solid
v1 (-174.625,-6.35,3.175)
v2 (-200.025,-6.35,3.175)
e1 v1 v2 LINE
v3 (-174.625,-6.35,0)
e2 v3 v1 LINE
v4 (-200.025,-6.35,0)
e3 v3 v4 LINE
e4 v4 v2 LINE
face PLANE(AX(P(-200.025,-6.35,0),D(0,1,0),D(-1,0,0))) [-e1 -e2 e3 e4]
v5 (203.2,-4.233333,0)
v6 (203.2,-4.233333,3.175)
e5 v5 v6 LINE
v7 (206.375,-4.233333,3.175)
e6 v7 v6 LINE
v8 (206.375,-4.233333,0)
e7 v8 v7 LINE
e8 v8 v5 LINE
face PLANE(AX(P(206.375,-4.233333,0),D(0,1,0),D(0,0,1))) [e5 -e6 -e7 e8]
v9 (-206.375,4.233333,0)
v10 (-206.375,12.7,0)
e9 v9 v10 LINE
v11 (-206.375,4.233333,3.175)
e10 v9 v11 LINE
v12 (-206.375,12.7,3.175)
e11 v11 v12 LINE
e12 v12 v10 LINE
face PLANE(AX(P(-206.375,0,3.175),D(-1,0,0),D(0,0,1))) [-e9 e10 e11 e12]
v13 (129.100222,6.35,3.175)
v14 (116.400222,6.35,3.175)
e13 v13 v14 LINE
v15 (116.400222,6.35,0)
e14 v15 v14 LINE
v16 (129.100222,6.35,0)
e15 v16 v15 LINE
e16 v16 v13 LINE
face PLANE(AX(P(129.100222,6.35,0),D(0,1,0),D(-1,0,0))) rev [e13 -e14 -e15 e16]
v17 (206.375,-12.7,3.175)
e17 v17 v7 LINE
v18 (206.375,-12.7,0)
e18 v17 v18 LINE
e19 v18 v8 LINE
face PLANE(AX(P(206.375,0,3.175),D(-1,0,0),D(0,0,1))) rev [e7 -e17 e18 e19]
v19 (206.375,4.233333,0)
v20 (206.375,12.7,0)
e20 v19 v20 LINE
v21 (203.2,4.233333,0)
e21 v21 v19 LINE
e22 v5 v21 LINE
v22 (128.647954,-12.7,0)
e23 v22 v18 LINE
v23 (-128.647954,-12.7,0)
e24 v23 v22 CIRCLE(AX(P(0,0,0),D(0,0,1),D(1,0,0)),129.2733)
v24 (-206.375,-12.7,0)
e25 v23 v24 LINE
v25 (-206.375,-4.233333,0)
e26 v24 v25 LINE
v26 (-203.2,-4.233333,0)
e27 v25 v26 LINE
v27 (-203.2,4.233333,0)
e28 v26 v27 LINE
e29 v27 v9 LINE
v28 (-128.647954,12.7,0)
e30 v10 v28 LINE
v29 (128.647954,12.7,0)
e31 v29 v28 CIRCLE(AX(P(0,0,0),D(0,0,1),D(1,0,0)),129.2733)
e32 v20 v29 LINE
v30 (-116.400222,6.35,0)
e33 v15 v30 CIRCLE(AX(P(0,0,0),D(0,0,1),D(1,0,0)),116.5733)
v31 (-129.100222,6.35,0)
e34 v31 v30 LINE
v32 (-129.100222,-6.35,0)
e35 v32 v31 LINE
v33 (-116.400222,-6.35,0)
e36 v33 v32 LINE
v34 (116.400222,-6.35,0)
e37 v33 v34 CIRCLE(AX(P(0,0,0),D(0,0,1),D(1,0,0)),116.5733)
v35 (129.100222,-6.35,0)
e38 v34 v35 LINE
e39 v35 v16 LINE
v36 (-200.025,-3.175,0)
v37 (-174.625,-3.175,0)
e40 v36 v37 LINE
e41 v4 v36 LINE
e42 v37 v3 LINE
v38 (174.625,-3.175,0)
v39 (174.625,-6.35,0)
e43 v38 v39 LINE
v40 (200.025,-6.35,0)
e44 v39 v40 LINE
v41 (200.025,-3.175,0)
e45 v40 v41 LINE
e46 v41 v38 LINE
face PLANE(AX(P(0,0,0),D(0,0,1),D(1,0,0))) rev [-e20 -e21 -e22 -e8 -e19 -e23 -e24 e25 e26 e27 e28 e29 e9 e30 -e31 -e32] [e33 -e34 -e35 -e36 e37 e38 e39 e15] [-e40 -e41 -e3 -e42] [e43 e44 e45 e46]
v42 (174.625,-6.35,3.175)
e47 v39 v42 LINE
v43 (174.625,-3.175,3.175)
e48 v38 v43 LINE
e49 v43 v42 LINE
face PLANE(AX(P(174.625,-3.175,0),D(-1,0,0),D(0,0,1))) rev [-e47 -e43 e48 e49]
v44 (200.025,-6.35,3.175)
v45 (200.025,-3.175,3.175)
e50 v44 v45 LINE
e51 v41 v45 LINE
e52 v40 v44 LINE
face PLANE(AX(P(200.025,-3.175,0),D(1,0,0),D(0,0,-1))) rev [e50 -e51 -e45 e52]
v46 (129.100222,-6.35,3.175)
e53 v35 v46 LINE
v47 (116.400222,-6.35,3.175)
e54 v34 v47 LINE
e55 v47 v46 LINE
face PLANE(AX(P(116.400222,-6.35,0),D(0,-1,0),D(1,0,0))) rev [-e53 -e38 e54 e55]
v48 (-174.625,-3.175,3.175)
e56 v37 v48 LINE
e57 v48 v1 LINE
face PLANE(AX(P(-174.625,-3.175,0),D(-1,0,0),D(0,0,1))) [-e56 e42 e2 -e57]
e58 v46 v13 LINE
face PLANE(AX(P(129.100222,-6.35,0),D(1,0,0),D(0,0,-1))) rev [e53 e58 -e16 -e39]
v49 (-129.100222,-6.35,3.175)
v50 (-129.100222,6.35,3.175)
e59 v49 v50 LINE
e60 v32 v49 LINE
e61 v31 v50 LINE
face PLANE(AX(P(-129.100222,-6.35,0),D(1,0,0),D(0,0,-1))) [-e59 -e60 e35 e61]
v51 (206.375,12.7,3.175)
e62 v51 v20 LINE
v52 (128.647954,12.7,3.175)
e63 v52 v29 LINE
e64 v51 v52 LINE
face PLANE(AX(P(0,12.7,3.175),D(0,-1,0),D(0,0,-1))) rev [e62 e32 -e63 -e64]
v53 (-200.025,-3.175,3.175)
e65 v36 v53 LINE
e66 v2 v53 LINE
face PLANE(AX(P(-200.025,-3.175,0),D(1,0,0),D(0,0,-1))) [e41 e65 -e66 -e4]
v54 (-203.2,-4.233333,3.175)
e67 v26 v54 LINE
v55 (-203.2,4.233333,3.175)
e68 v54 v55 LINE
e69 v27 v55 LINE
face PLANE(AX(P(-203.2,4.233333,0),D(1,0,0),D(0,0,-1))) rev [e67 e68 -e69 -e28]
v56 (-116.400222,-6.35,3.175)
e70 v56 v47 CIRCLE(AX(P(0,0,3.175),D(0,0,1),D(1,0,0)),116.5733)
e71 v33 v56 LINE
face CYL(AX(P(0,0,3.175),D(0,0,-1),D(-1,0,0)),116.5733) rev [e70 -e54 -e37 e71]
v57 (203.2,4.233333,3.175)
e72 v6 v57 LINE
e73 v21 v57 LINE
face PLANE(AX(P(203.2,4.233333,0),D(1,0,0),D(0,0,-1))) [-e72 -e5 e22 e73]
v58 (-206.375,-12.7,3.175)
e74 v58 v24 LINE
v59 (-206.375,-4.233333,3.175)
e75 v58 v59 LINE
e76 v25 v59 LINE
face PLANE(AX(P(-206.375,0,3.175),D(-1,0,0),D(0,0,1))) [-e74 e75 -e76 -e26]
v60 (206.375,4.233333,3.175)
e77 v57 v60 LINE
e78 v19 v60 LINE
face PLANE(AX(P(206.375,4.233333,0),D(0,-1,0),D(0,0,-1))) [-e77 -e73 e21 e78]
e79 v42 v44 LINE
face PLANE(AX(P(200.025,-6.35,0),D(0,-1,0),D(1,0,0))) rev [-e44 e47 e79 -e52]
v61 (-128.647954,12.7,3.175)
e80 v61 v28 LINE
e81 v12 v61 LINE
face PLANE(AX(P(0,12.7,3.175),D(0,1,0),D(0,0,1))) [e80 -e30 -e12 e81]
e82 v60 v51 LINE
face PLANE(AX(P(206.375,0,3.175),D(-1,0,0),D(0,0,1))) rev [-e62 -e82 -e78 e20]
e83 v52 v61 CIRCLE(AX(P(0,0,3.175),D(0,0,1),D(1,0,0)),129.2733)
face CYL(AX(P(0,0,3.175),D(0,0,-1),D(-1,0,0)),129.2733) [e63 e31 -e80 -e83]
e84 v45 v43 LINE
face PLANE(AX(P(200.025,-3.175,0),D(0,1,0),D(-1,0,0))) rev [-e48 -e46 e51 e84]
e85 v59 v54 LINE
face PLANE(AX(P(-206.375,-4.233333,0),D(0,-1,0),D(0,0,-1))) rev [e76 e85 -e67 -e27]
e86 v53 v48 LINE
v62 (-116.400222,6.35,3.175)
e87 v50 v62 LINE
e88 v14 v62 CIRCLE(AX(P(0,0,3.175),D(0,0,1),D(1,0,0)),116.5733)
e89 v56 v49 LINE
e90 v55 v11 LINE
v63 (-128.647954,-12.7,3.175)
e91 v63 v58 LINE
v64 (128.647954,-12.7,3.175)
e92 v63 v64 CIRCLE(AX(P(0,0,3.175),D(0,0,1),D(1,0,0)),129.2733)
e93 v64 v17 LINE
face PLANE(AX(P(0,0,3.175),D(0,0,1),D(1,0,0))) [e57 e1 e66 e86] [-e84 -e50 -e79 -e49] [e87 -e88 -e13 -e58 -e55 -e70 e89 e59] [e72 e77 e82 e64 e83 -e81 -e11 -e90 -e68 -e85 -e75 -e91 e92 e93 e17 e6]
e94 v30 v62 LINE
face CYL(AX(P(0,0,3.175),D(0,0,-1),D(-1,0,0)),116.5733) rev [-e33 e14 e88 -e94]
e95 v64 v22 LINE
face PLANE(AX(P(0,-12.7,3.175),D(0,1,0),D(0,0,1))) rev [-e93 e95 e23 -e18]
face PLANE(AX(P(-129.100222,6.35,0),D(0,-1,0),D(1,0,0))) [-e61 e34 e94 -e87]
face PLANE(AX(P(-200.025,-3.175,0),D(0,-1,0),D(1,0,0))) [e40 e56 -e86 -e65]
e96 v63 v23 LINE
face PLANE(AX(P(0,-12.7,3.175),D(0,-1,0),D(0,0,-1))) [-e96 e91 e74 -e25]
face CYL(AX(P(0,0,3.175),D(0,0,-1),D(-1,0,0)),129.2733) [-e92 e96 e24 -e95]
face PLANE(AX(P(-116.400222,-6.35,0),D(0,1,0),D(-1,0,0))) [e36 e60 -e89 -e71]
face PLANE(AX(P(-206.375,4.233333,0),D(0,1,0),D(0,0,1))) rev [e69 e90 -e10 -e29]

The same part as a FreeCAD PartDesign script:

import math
import FreeCAD as App
import Part
import Sketcher
from FreeCAD import Vector
Q = App.Units.Quantity

doc = App.newDocument("Part")
params = doc.addObject("Spreadsheet::Sheet", "Params")
for row, (alias, value) in enumerate([
    ("sketch1_height", "1 in"),
    ("sketch1_diameter", "9.179 in"),
    ("pad1_length", "0.125 in"),
    ("sketch2_width", "0.125 in"),
    ("pocket1_length", "0.125 in"),
    ("sketch3_width", "0.5 in"),
    ("pocket2_length", "0.125 in"),
    ("sketch4_width", "1 in"),
    ("sketch4_height", "0.125 in"),
    ("pocket3_length", "0.125 in"),
], start=1):
    params.set(f"A{row}", alias)
    params.set(f"B{row}", "=" + value)
    params.setAlias(f"B{row}", alias)

body = doc.addObject("PartDesign::Body", "Body")

sketch1 = body.newObject("Sketcher::SketchObject", "Sketch")
sketch1.AttachmentSupport = (doc.getObject("XY_Plane"), [""])
sketch1.MapMode = "FlatFace"
sketch1.addGeometry([
    Part.LineSegment(Vector(-206, -13, 0), Vector(-129, -13, 0)),
    Part.ArcOfCircle(Part.Circle(Vector(0, 0, 0), Vector(0, 0, 1), 129), math.radians(-174), math.radians(-6)),
    Part.LineSegment(Vector(129, -13, 0), Vector(206, -13, 0)),
    Part.LineSegment(Vector(206, -13, 0), Vector(206, 13, 0)),
    Part.LineSegment(Vector(206, 13, 0), Vector(129, 13, 0)),
    Part.ArcOfCircle(Part.Circle(Vector(0, 0, 0), Vector(0, 0, 1), 129), math.radians(6), math.radians(174)),
    Part.LineSegment(Vector(-129, 13, 0), Vector(-206, 13, 0)),
    Part.LineSegment(Vector(-206, 13, 0), Vector(-206, -13, 0)),
    Part.Circle(Vector(0, 0, 0), Vector(0, 0, 1), 117),
], False)
sketch1.addConstraint([
    Sketcher.Constraint("Coincident", 0, 2, 1, 1),
    Sketcher.Constraint("Coincident", 1, 2, 2, 1),
    Sketcher.Constraint("Coincident", 2, 2, 3, 1),
    Sketcher.Constraint("Coincident", 3, 2, 4, 1),
    Sketcher.Constraint("Coincident", 4, 2, 5, 1),
    Sketcher.Constraint("Coincident", 5, 2, 6, 1),
    Sketcher.Constraint("Coincident", 6, 2, 7, 1),
    Sketcher.Constraint("Coincident", 7, 2, 0, 1),
    Sketcher.Constraint("Horizontal", 0),
    Sketcher.Constraint("Horizontal", 2),
    Sketcher.Constraint("Vertical", 3),
    Sketcher.Constraint("Horizontal", 4),
    Sketcher.Constraint("Horizontal", 6),
    Sketcher.Constraint("Vertical", 7),
    Sketcher.Constraint("Coincident", 1, 3, -1, 1),
    Sketcher.Constraint("Coincident", 5, 3, -1, 1),
    Sketcher.Constraint("Coincident", 8, 3, -1, 1),
    Sketcher.Constraint("Equal", 1, 5),
    Sketcher.Constraint("Symmetric", 2, 2, 6, 2, -1, 1),
    Sketcher.Constraint("Horizontal", 0, 2, 1, 2),
    Sketcher.Constraint("Horizontal", 4, 2, 5, 2),
    Sketcher.Constraint("DistanceY", 3, 1, 3, 2, Q("1 in")),
    Sketcher.Constraint("Diameter", 8, Q("9.179 in")),
    Sketcher.Constraint("Radius", 1, Q("5.0895 in")),
    Sketcher.Constraint("DistanceX", -1, 1, 2, 2, Q("8.125 in")),
])
sketch1.setExpression("Constraints[21]", "Params.sketch1_height")
sketch1.setExpression("Constraints[22]", "Params.sketch1_diameter")
pad1 = body.newObject("PartDesign::Pad", "Pad")
pad1.Profile = sketch1
pad1.setExpression("Length", "Params.pad1_length")

sketch2 = body.newObject("Sketcher::SketchObject", "Sketch001")
sketch2.AttachmentSupport = (doc.getObject("XY_Plane"), [""])
sketch2.MapMode = "FlatFace"
sketch2.AttachmentOffset = App.Placement(Vector(0, 0, 0.125 * 25.4), App.Rotation())
sketch2.addGeometry([
    Part.LineSegment(Vector(-206.4, 4.2, 0), Vector(-206.4, -4.2, 0)),
    Part.LineSegment(Vector(-206.4, -4.2, 0), Vector(-203.2, -4.2, 0)),
    Part.LineSegment(Vector(-203.2, -4.2, 0), Vector(-203.2, 4.2, 0)),
    Part.LineSegment(Vector(-203.2, 4.2, 0), Vector(-206.4, 4.2, 0)),
], False)
sketch2.addConstraint([
    Sketcher.Constraint("Coincident", 0, 2, 1, 1),
    Sketcher.Constraint("Coincident", 1, 2, 2, 1),
    Sketcher.Constraint("Coincident", 2, 2, 3, 1),
    Sketcher.Constraint("Coincident", 3, 2, 0, 1),
    Sketcher.Constraint("Vertical", 0),
    Sketcher.Constraint("Horizontal", 1),
    Sketcher.Constraint("Vertical", 2),
    Sketcher.Constraint("Horizontal", 3),
    Sketcher.Constraint("DistanceX", 1, 2, -1, 1, Q("8 in")),
    Sketcher.Constraint("DistanceX", 1, 1, 1, 2, Q("0.125 in")),
    Sketcher.Constraint("DistanceY", 0, 2, 0, 1, Q("8.466667 mm")),
    Sketcher.Constraint("DistanceY", 0, 2, -1, 1, Q("4.233333 mm")),
])
sketch2.setExpression("Constraints[9]", "Params.sketch2_width")
pocket1 = body.newObject("PartDesign::Pocket", "Pocket")
pocket1.Profile = sketch2
pocket1.setExpression("Length", "Params.pocket1_length")
doc.recompute()

mirrored = body.newObject("PartDesign::Mirrored", "Mirrored")
mirrored.Originals = [pocket1]
mirrored.MirrorPlane = (doc.getObject("YZ_Plane"), [""])
body.Tip = mirrored

sketch3 = body.newObject("Sketcher::SketchObject", "Sketch002")
sketch3.AttachmentSupport = (doc.getObject("XY_Plane"), [""])
sketch3.MapMode = "FlatFace"
sketch3.addGeometry([
    Part.LineSegment(Vector(-129, -6, 0), Vector(-116, -6, 0)),
    Part.ArcOfCircle(Part.Circle(Vector(0, 0, 0), Vector(0, 0, 1), 117), math.radians(176.88), math.radians(183.12)),
    Part.LineSegment(Vector(-116, 6, 0), Vector(-129, 6, 0)),
    Part.LineSegment(Vector(-129, 6, 0), Vector(-129, -6, 0)),
], False)
sketch3.addConstraint([
    Sketcher.Constraint("Coincident", 0, 2, 1, 2),
    Sketcher.Constraint("Coincident", 1, 1, 2, 1),
    Sketcher.Constraint("Coincident", 2, 2, 3, 1),
    Sketcher.Constraint("Coincident", 3, 2, 0, 1),
    Sketcher.Constraint("Horizontal", 0),
    Sketcher.Constraint("Horizontal", 2),
    Sketcher.Constraint("Vertical", 3),
    Sketcher.Constraint("Coincident", 1, 3, -1, 1),
    Sketcher.Constraint("Vertical", 0, 2, 1, 1),
    Sketcher.Constraint("Equal", 2, 3),
    Sketcher.Constraint("DistanceX", 0, 1, 0, 2, Q("0.5 in")),
    Sketcher.Constraint("Radius", 1, Q("4.5895 in")),
])
sketch3.setExpression("Constraints[10]", "Params.sketch3_width")
pocket2 = body.newObject("PartDesign::Pocket", "Pocket001")
pocket2.Profile = sketch3
pocket2.setExpression("Length", "Params.pocket2_length")
pocket2.Reversed = True
doc.recompute()

mirrored2 = body.newObject("PartDesign::Mirrored", "Mirrored001")
mirrored2.Originals = [pocket2]
mirrored2.MirrorPlane = (doc.getObject("YZ_Plane"), [""])
body.Tip = mirrored2

sketch4 = body.newObject("Sketcher::SketchObject", "Sketch003")
sketch4.AttachmentSupport = (doc.getObject("XY_Plane"), [""])
sketch4.MapMode = "FlatFace"
sketch4.AttachmentOffset = App.Placement(Vector(0, 0, 0.125 * 25.4), App.Rotation())
sketch4.addGeometry([
    Part.LineSegment(Vector(174.6, -3.2, 0), Vector(174.6, -6.3, 0)),
    Part.LineSegment(Vector(174.6, -6.3, 0), Vector(200, -6.3, 0)),
    Part.LineSegment(Vector(200, -6.3, 0), Vector(200, -3.2, 0)),
    Part.LineSegment(Vector(200, -3.2, 0), Vector(174.6, -3.2, 0)),
], False)
sketch4.addConstraint([
    Sketcher.Constraint("Coincident", 0, 2, 1, 1),
    Sketcher.Constraint("Coincident", 1, 2, 2, 1),
    Sketcher.Constraint("Coincident", 2, 2, 3, 1),
    Sketcher.Constraint("Coincident", 3, 2, 0, 1),
    Sketcher.Constraint("Vertical", 0),
    Sketcher.Constraint("Horizontal", 1),
    Sketcher.Constraint("Vertical", 2),
    Sketcher.Constraint("Horizontal", 3),
    Sketcher.Constraint("DistanceX", 1, 1, 1, 2, Q("1 in")),
    Sketcher.Constraint("DistanceY", 0, 2, 0, 1, Q("0.125 in")),
    Sketcher.Constraint("DistanceY", 0, 2, -1, 1, Q("0.25 in")),
    Sketcher.Constraint("DistanceX", -1, 1, 0, 2, Q("6.875 in")),
])
sketch4.setExpression("Constraints[8]", "Params.sketch4_width")
sketch4.setExpression("Constraints[9]", "Params.sketch4_height")
pocket3 = body.newObject("PartDesign::Pocket", "Pocket002")
pocket3.Profile = sketch4
pocket3.setExpression("Length", "Params.pocket3_length")
doc.recompute()

mirrored3 = body.newObject("PartDesign::Mirrored", "Mirrored002")
mirrored3.Originals = [pocket3]
mirrored3.MirrorPlane = (doc.getObject("YZ_Plane"), [""])
body.Tip = mirrored3

doc.recompute()
